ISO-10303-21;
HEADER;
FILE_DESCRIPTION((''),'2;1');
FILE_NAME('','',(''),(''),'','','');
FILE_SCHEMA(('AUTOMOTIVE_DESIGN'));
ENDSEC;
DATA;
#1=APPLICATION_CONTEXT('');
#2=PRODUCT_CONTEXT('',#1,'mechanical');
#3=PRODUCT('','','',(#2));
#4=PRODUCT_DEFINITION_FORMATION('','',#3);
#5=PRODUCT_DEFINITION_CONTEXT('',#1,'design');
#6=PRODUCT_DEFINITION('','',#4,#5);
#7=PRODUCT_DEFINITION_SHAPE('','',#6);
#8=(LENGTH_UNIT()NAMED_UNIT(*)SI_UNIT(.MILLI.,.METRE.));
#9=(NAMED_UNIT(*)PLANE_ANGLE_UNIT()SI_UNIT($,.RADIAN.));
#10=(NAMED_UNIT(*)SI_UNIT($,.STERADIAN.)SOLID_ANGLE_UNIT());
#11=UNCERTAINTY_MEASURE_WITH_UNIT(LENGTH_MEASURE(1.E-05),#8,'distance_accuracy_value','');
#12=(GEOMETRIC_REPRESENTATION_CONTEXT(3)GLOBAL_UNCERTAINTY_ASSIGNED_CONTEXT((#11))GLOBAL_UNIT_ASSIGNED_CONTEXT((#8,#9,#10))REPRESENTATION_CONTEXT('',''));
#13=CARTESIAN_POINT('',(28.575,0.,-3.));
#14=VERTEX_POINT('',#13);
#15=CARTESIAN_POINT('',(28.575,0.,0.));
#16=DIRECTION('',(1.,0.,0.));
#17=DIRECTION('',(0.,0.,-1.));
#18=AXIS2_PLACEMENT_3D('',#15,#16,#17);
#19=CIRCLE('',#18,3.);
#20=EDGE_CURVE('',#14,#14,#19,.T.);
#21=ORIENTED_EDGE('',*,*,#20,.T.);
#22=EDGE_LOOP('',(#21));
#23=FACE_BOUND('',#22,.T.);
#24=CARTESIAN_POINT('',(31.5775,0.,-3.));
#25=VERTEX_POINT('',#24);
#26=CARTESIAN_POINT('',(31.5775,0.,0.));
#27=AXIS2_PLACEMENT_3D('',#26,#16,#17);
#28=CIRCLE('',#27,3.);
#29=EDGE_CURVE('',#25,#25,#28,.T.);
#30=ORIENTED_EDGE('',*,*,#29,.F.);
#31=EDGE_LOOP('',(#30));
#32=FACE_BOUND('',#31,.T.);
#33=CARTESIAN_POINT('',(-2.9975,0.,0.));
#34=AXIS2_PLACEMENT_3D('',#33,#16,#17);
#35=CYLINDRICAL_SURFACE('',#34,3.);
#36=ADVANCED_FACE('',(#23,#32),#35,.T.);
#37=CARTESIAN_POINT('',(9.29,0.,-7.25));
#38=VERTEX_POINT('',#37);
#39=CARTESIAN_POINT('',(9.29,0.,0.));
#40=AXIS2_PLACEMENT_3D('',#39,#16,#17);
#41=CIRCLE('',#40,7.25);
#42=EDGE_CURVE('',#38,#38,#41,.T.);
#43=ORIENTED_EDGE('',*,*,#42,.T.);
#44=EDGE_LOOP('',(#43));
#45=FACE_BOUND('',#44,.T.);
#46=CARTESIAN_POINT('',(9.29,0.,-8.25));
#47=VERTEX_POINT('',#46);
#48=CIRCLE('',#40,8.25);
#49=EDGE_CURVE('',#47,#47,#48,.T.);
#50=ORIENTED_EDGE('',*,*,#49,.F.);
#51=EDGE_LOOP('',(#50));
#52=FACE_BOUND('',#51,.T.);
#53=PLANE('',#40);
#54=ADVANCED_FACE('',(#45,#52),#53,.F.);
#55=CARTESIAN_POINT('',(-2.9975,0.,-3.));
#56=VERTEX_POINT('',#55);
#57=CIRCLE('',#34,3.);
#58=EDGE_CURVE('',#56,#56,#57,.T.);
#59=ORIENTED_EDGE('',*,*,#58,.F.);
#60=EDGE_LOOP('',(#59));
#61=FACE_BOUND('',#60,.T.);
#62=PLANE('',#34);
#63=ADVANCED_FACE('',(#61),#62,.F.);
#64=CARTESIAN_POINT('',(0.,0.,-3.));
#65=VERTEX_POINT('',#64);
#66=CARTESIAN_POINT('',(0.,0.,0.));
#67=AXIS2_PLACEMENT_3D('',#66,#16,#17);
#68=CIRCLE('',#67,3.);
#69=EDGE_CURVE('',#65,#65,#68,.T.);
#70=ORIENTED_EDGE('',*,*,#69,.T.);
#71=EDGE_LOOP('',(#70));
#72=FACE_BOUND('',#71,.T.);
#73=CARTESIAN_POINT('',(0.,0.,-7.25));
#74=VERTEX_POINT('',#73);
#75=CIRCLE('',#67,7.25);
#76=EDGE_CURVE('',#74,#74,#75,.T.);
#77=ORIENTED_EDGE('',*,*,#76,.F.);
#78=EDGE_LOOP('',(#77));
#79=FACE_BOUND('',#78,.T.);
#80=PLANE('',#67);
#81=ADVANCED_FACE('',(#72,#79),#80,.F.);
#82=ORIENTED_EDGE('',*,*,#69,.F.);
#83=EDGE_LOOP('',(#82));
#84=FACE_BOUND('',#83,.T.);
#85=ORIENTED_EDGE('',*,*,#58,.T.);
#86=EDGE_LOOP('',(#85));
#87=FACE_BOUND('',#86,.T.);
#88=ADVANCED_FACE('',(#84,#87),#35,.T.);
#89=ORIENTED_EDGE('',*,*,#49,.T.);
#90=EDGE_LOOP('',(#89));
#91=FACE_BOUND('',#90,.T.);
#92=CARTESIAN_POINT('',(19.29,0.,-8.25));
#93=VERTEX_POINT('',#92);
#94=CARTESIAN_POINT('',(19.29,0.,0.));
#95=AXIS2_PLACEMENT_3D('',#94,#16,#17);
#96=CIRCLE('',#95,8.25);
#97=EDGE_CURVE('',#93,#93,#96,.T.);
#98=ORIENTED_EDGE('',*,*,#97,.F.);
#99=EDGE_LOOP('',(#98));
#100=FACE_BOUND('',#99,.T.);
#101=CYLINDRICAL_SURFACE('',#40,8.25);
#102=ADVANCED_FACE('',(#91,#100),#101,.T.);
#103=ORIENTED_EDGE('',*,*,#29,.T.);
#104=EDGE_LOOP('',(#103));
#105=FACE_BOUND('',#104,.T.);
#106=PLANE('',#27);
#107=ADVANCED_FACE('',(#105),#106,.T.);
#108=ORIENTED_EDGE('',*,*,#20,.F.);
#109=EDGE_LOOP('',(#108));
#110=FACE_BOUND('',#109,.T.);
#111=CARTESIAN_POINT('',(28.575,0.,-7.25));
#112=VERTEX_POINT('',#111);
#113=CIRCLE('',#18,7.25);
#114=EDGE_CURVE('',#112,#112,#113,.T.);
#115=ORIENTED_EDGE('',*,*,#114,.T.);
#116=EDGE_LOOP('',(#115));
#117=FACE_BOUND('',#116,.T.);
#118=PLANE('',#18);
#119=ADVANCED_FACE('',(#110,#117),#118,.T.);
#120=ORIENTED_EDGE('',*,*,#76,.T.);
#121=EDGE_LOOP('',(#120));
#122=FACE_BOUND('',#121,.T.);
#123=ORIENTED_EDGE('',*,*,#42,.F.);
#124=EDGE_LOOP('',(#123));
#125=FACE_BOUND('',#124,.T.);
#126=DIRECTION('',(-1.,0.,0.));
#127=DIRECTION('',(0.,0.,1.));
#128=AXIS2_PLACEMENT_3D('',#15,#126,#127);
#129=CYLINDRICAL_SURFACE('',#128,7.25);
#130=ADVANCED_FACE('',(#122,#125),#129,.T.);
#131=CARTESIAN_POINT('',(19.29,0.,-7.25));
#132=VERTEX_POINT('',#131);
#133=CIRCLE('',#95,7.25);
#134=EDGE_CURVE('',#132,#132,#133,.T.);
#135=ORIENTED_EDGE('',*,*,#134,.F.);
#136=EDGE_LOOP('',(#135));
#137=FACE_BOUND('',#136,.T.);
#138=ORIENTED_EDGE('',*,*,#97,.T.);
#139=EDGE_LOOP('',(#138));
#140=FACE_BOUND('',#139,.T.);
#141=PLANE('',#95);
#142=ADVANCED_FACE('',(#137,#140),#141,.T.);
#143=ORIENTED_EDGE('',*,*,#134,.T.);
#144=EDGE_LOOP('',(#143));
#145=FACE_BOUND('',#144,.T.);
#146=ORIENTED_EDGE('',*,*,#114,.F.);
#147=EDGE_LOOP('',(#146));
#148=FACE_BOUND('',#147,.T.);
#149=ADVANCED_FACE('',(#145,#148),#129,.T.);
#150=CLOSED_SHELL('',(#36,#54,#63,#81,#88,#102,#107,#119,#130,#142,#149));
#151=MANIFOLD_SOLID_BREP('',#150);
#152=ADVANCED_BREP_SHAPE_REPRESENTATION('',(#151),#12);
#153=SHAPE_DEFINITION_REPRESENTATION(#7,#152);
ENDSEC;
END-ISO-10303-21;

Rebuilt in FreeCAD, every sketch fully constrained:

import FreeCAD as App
import Part
import Sketcher

V = App.Vector

doc = App.newDocument("Part")
body = doc.addObject("PartDesign::Body", "Body")

# Sketch on YZ plane
sketch1 = body.newObject("Sketcher::SketchObject", "Sketch")
sketch1.AttachmentSupport = (doc.getObject("YZ_Plane"), [""])
sketch1.MapMode = "FlatFace"
sketch1.addGeometry(Part.Circle(V(0, 0, 0), V(0, 0, 1), 7), False)
sketch1.addConstraint(Sketcher.Constraint("Coincident", 0, 3, -1, 1))
sketch1.addConstraint(Sketcher.Constraint("Diameter", 0, 14.5))
pad1 = body.newObject("PartDesign::Pad", "Pad")
pad1.Profile = sketch1
pad1.Length = 28.575

# Sketch on YZ plane
sketch2 = body.newObject("Sketcher::SketchObject", "Sketch001")
sketch2.AttachmentSupport = (doc.getObject("YZ_Plane"), [""])
sketch2.MapMode = "FlatFace"
sketch2.AttachmentOffset = App.Placement(V(0, 0, 14.29), App.Rotation())
sketch2.addGeometry(Part.Circle(V(0, 0, 0), V(0, 0, 1), 8), False)
sketch2.addConstraint(Sketcher.Constraint("Coincident", 0, 3, -1, 1))
sketch2.addConstraint(Sketcher.Constraint("Diameter", 0, 16.5))
pad2 = body.newObject("PartDesign::Pad", "Pad001")
pad2.Profile = sketch2
pad2.Type = "TwoLengths"
pad2.Length = 5
pad2.Length2 = 5

# Sketch on YZ plane
sketch3 = body.newObject("Sketcher::SketchObject", "Sketch002")
sketch3.AttachmentSupport = (doc.getObject("YZ_Plane"), [""])
sketch3.MapMode = "FlatFace"
sketch3.AttachmentOffset = App.Placement(V(0, 0, 14.29), App.Rotation())
sketch3.addGeometry(Part.Circle(V(0, 0, 0), V(0, 0, 1), 3), False)
sketch3.addConstraint(Sketcher.Constraint("Coincident", 0, 3, -1, 1))
sketch3.addConstraint(Sketcher.Constraint("Diameter", 0, 6.0))
pad3 = body.newObject("PartDesign::Pad", "Pad002")
pad3.Profile = sketch3
pad3.Type = "TwoLengths"
pad3.Length = 17.2875
pad3.Length2 = 17.2875

doc.recompute()
